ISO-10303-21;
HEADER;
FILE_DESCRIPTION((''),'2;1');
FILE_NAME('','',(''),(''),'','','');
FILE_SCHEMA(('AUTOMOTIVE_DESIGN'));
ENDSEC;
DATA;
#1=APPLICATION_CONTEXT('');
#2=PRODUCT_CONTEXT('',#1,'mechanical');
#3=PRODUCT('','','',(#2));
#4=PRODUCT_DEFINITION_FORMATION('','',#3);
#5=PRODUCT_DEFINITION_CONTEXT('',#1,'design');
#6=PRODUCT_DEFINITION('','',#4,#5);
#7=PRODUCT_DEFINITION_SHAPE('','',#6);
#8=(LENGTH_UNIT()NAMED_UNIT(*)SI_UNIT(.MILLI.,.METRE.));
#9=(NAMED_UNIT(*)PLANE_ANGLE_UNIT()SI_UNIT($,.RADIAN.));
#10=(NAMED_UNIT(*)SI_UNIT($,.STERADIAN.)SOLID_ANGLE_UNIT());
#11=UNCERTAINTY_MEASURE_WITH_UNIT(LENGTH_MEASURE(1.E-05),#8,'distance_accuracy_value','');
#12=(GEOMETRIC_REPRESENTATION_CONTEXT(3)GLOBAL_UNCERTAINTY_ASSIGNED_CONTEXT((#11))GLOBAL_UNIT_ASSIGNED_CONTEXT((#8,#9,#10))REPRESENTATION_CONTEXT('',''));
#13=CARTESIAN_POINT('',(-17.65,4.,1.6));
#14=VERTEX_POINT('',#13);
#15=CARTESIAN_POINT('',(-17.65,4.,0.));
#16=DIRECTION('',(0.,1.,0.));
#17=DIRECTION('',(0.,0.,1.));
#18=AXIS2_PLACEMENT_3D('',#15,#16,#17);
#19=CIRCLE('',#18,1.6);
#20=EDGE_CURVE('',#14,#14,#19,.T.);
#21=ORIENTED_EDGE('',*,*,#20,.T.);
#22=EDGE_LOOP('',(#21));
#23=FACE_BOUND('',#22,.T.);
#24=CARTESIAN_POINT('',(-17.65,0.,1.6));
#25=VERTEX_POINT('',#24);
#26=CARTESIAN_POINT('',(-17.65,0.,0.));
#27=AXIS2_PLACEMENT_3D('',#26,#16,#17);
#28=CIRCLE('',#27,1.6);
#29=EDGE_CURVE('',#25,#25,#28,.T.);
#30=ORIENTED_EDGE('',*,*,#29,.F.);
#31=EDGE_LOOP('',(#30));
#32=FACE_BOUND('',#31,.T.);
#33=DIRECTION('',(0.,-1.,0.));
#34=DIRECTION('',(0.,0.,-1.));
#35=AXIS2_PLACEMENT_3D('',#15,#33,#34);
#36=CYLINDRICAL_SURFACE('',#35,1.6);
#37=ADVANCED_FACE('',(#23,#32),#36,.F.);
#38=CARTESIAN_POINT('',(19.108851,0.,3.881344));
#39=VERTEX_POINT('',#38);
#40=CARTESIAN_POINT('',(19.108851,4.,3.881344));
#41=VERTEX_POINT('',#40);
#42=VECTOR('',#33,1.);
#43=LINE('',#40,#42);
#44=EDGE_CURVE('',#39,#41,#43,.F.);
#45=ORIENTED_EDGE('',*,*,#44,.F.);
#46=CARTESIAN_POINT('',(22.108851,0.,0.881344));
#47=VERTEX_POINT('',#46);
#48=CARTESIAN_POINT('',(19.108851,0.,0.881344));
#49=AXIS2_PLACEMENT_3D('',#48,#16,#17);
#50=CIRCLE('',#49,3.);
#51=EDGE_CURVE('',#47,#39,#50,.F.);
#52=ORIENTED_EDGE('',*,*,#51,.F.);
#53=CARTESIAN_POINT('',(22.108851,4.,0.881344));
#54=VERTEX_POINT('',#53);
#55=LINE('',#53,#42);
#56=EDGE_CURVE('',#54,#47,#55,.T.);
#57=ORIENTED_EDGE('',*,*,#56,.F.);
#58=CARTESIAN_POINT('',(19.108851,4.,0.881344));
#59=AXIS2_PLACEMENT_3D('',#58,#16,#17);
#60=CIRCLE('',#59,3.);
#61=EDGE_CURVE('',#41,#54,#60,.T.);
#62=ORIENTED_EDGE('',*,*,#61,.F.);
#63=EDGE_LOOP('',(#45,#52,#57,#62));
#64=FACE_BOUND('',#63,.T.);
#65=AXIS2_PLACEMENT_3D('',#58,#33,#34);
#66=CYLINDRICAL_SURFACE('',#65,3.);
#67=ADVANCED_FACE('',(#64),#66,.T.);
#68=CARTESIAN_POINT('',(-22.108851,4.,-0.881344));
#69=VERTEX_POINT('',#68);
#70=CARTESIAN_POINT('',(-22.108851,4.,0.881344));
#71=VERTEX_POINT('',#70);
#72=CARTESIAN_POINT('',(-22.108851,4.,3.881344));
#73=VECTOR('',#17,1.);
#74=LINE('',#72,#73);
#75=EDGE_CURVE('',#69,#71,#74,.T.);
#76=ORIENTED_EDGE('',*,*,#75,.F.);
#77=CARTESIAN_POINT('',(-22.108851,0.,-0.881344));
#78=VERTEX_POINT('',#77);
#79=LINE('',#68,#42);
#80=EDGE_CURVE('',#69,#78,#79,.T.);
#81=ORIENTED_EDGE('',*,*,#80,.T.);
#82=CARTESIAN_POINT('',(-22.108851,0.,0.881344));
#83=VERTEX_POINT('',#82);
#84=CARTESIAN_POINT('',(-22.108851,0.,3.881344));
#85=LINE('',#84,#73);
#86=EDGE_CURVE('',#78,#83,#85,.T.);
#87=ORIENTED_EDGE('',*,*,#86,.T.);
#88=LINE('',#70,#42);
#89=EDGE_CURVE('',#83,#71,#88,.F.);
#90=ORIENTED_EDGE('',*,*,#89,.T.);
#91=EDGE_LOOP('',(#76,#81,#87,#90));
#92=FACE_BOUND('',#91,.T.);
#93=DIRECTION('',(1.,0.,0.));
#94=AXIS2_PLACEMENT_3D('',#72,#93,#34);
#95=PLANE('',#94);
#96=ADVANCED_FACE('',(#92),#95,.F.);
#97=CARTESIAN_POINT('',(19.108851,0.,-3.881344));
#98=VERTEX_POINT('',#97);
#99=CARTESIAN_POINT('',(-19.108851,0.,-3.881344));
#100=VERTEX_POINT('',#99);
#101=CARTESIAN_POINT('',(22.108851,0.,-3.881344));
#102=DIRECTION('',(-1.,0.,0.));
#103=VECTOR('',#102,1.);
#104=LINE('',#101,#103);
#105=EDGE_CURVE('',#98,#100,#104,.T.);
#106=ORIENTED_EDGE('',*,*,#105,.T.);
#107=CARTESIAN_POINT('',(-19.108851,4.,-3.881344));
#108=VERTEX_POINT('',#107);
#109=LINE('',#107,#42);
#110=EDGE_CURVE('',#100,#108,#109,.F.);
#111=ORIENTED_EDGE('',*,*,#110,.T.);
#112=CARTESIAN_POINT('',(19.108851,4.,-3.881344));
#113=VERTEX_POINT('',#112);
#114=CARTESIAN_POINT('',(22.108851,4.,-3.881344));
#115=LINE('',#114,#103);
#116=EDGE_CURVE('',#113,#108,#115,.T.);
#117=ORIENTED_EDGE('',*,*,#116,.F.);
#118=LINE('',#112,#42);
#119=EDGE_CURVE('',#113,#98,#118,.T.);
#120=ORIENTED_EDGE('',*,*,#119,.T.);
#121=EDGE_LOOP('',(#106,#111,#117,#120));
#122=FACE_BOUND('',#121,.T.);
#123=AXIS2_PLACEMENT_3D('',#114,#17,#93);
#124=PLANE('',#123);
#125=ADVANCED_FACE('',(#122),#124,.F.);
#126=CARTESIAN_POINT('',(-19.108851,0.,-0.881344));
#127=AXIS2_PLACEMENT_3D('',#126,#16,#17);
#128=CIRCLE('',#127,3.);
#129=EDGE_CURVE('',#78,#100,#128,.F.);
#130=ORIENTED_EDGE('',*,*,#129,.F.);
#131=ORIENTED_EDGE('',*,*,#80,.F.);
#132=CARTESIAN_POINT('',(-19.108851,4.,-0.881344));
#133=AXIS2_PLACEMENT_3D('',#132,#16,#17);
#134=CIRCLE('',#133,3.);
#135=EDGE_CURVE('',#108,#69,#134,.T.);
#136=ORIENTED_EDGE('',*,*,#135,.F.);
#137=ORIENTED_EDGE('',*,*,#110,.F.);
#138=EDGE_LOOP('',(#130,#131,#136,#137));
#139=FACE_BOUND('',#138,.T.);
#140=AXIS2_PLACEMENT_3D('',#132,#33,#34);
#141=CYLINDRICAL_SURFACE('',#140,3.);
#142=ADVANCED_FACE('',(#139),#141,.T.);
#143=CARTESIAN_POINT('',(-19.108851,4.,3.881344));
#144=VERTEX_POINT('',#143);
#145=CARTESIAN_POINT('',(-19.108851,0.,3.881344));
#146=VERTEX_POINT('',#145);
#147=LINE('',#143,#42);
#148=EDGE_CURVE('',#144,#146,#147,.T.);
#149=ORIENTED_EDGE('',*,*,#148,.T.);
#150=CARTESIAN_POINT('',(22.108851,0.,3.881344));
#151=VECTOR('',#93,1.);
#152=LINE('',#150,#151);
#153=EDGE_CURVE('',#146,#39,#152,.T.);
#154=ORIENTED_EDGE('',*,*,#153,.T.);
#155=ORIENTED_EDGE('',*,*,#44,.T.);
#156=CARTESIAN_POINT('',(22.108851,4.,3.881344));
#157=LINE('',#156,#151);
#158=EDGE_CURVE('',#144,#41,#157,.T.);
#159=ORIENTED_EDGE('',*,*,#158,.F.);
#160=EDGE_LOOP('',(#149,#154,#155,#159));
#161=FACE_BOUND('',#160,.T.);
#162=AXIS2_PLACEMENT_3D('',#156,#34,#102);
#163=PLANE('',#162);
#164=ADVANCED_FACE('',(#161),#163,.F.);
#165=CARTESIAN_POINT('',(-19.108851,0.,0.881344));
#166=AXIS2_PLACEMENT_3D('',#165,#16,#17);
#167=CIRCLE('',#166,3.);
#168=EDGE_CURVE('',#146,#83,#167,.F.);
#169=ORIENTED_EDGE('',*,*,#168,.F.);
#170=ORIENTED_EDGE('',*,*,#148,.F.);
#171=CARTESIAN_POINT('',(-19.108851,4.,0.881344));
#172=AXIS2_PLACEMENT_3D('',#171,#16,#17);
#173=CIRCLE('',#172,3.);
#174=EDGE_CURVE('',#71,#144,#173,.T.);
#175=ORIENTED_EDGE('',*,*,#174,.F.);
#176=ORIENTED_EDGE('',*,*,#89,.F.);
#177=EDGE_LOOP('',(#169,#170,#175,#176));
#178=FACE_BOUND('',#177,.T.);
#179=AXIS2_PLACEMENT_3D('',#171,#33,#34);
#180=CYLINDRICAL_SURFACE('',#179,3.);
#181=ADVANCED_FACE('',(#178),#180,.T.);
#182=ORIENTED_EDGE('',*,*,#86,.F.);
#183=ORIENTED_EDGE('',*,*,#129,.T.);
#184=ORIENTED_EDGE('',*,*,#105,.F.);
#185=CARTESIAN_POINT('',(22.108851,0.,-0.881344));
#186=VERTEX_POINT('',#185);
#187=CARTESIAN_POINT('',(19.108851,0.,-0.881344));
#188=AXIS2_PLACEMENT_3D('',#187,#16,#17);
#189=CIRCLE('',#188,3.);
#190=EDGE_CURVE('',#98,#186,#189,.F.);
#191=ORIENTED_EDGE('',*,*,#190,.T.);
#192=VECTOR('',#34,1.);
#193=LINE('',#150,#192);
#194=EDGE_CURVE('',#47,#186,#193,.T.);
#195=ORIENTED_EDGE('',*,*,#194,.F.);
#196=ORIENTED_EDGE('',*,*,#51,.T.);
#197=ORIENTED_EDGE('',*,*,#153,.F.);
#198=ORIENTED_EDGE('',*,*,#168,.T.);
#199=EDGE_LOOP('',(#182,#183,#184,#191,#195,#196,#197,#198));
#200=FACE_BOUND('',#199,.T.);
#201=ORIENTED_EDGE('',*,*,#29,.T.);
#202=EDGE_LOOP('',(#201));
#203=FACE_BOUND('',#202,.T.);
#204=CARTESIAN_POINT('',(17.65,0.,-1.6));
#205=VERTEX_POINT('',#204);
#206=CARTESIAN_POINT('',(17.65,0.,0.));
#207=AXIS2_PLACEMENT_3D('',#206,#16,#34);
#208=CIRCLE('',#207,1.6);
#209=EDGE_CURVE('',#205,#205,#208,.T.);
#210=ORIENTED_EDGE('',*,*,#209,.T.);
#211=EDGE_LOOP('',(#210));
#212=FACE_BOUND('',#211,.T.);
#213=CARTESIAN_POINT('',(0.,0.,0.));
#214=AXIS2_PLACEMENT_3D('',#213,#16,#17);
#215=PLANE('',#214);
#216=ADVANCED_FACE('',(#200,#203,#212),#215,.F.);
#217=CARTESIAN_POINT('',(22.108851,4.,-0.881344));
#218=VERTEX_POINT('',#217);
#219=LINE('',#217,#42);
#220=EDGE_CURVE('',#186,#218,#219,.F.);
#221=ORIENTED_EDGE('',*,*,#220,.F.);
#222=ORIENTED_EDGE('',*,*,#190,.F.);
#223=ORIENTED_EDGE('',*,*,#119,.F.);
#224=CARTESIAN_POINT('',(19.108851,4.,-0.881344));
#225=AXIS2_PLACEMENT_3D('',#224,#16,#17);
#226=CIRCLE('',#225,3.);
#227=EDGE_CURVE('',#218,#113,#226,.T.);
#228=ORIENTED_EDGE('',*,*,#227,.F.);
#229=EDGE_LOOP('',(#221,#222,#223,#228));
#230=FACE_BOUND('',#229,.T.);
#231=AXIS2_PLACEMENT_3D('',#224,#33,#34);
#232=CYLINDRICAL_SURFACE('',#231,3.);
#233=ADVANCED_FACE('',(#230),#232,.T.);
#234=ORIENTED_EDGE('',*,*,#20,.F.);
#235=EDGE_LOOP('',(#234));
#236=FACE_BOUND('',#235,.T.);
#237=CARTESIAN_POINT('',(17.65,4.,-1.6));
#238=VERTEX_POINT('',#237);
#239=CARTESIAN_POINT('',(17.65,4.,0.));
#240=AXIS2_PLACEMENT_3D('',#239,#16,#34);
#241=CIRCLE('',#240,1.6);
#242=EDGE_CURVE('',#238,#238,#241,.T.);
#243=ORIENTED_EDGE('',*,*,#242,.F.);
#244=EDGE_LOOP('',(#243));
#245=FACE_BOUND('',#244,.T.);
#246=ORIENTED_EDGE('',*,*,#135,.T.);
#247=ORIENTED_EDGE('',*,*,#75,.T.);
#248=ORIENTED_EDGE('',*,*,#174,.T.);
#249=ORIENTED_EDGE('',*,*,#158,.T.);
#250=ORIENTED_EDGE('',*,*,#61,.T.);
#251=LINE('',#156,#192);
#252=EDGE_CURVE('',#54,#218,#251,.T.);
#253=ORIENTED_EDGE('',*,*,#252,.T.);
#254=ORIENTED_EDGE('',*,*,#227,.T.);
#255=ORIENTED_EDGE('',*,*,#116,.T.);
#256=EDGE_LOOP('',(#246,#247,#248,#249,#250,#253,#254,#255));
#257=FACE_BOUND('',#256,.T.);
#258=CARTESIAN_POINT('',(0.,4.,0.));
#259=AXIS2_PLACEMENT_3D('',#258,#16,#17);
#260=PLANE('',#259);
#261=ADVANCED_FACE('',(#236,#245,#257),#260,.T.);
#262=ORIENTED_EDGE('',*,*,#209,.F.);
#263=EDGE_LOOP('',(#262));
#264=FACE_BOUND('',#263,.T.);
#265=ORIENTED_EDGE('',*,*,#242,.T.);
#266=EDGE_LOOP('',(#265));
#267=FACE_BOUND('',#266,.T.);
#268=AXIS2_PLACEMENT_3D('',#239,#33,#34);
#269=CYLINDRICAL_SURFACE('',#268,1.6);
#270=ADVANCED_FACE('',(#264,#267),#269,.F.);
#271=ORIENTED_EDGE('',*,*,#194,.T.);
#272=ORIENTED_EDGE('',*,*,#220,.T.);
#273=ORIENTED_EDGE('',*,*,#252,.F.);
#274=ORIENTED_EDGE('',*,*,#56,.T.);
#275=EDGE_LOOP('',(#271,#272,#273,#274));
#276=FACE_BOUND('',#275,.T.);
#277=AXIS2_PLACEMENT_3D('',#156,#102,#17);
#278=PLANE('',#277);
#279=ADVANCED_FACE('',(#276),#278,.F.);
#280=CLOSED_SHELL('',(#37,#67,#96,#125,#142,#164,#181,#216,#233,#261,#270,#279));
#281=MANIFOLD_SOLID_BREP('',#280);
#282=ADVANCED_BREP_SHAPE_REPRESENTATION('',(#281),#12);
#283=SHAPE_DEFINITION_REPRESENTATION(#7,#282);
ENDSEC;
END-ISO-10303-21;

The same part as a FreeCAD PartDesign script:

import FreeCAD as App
import Part
import Sketcher

V = App.Vector


def edges_at(feature, points):
    """Names of the edges that pass closest to the given points."""
    edges = feature.Shape.Edges
    near = lambda p: min(range(len(edges)), key=lambda i: edges[i].distToShape(Part.Vertex(*p))[0])
    return sorted({f"Edge{near(p) + 1}" for p in points})

doc = App.newDocument("Part")
body = doc.addObject("PartDesign::Body", "Body")

sketch1 = body.newObject("Sketcher::SketchObject", "Sketch")
sketch1.AttachmentSupport = (doc.getObject("XZ_Plane"), [""])
sketch1.MapMode = "FlatFace"
sketch1.addGeometry(Part.LineSegment(V(-22.1, -3.9, 0), V(-22.1, 3.9, 0)), False)
sketch1.addGeometry(Part.LineSegment(V(-22.1, 3.9, 0), V(22.1, 3.9, 0)), False)
sketch1.addGeometry(Part.LineSegment(V(22.1, 3.9, 0), V(22.1, -3.9, 0)), False)
sketch1.addGeometry(Part.LineSegment(V(22.1, -3.9, 0), V(-22.1, -3.9, 0)), False)
sketch1.addGeometry(Part.Circle(V(-17.6, 0, 0), V(0, 0, 1), 1.6), False)
sketch1.addGeometry(Part.Circle(V(17.6, 0, 0), V(0, 0, 1), 1.6), False)
sketch1.addConstraint(Sketcher.Constraint("Coincident", 0, 2, 1, 1))
sketch1.addConstraint(Sketcher.Constraint("Coincident", 1, 2, 2, 1))
sketch1.addConstraint(Sketcher.Constraint("Coincident", 2, 2, 3, 1))
sketch1.addConstraint(Sketcher.Constraint("Coincident", 3, 2, 0, 1))
sketch1.addConstraint(Sketcher.Constraint("Vertical", 0))
sketch1.addConstraint(Sketcher.Constraint("Horizontal", 1))
sketch1.addConstraint(Sketcher.Constraint("Vertical", 2))
sketch1.addConstraint(Sketcher.Constraint("Horizontal", 3))
sketch1.addConstraint(Sketcher.Constraint("Equal", 4, 5))
sketch1.addConstraint(Sketcher.Constraint("Symmetric", 4, 3, 5, 3, -1, 1))
sketch1.addConstraint(Sketcher.Constraint("Symmetric", 0, 2, 2, 2, -1, 1))
sketch1.addConstraint(Sketcher.Constraint("PointOnObject", 4, 3, -1))
sketch1.addConstraint(Sketcher.Constraint("Diameter", 4, 3.2))
sketch1.addConstraint(Sketcher.Constraint("DistanceX", 4, 3, 5, 3, 35.3))
sketch1.addConstraint(Sketcher.Constraint("DistanceX", 1, 1, 1, 2, 44.217702))
sketch1.addConstraint(Sketcher.Constraint("DistanceY", 0, 1, 0, 2, 7.762687))
pad1 = body.newObject("PartDesign::Pad", "Pad")
pad1.Profile = sketch1
pad1.Length = 4
pad1.Reversed = True
doc.recompute()

fillet = body.newObject("PartDesign::Fillet", "Fillet")
fillet.Base = (pad1, edges_at(pad1, [
    (-22.109, 2, -3.881),
    (22.109, 2, -3.881),
    (22.109, 2, 3.881),
    (-22.109, 2, 3.881),
]))
fillet.Radius = 3

doc.recompute()
